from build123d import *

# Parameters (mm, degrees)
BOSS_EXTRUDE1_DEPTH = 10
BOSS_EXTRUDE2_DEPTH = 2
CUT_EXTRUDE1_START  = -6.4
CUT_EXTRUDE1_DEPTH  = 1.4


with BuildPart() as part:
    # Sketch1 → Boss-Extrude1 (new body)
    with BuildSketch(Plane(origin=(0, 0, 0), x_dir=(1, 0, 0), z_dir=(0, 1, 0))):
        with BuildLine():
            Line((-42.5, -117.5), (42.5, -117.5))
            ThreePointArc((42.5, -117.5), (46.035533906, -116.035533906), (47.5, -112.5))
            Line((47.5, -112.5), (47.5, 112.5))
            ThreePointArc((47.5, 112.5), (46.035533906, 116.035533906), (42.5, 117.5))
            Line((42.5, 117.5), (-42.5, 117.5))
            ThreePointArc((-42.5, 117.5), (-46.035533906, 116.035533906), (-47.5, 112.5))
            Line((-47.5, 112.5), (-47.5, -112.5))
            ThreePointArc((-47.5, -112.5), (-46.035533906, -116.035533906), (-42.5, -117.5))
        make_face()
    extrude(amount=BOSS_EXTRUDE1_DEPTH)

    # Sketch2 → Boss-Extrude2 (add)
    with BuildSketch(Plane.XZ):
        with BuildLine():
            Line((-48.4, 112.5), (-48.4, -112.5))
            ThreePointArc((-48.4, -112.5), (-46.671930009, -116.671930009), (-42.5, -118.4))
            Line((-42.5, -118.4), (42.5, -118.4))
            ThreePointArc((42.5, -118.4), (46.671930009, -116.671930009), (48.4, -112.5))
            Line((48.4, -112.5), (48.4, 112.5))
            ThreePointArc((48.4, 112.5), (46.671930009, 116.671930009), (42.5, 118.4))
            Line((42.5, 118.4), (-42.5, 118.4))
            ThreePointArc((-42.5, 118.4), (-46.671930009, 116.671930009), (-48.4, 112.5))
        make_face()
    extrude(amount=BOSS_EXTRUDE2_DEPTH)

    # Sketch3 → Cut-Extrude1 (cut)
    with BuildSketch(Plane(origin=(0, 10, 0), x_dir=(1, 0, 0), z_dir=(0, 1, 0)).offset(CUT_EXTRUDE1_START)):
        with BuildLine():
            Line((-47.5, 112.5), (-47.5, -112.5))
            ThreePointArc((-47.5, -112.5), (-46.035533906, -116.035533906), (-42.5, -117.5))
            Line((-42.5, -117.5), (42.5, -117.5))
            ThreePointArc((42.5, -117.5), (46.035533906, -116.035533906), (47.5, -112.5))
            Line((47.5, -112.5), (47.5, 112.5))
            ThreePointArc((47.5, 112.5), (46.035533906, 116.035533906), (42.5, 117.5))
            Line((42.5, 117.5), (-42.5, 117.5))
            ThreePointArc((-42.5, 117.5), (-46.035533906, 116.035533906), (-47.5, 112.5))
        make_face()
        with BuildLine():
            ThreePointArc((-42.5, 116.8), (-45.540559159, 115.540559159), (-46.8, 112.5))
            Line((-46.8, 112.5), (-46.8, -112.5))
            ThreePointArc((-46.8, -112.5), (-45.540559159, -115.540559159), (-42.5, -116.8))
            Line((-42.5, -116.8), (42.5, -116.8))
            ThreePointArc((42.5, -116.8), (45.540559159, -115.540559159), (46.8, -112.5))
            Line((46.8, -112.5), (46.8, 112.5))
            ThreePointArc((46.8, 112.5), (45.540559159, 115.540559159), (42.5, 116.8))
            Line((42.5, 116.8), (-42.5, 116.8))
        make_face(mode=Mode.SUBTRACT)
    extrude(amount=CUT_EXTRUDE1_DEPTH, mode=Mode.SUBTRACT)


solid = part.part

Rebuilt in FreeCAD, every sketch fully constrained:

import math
import FreeCAD as App
import Part
import Sketcher
from FreeCAD import Vector

doc = App.newDocument("Part")
body = doc.addObject("PartDesign::Body", "Body")

# Sketch on XZ plane
sketch1 = doc.addObject("Sketcher::SketchObject", "Sketch")
body.addObject(sketch1)
sketch1.AttachmentSupport = (doc.XZ_Plane, [""])
sketch1.MapMode = "FlatFace"
sketch1.addGeometry([
    Part.LineSegment(Vector(-42, 118, 0), Vector(42, 118, 0)),  # 0
    Part.ArcOfCircle(Part.Circle(Vector(42, 112, 0), Vector(0, 0, 1), 5), math.radians(0), math.radians(90)),  # 1
    Part.LineSegment(Vector(48, 112, 0), Vector(48, -112, 0)),  # 2
    Part.ArcOfCircle(Part.Circle(Vector(42, -112, 0), Vector(0, 0, 1), 5), math.radians(-90), math.radians(0)),  # 3
    Part.LineSegment(Vector(42, -118, 0), Vector(-42, -118, 0)),  # 4
    Part.ArcOfCircle(Part.Circle(Vector(-42, -112, 0), Vector(0, 0, 1), 5), math.radians(180), math.radians(270)),  # 5
    Part.LineSegment(Vector(-48, -112, 0), Vector(-48, 112, 0)),  # 6
    Part.ArcOfCircle(Part.Circle(Vector(-42, 112, 0), Vector(0, 0, 1), 5), math.radians(90), math.radians(180)),  # 7
], False)
sketch1.addConstraint([
    Sketcher.Constraint("Tangent", 0, 2, 1, 2),
    Sketcher.Constraint("Tangent", 1, 1, 2, 1),
    Sketcher.Constraint("Tangent", 2, 2, 3, 2),
    Sketcher.Constraint("Tangent", 3, 1, 4, 1),
    Sketcher.Constraint("Tangent", 4, 2, 5, 2),
    Sketcher.Constraint("Tangent", 5, 1, 6, 1),
    Sketcher.Constraint("Tangent", 6, 2, 7, 2),
    Sketcher.Constraint("Tangent", 7, 1, 0, 1),
    Sketcher.Constraint("Horizontal", 0),
    Sketcher.Constraint("Vertical", 2),
    Sketcher.Constraint("Horizontal", 4),
    Sketcher.Constraint("Vertical", 6),
    Sketcher.Constraint("Equal", 1, 3),
    Sketcher.Constraint("Equal", 3, 5),
    Sketcher.Constraint("Equal", 5, 7),
    Sketcher.Constraint("Symmetric", 1, 3, 5, 3, -1, 1),
    Sketcher.Constraint("Radius", 1, 5.0),
    Sketcher.Constraint("DistanceX", 0, 1, 0, 2, 85.0),
    Sketcher.Constraint("DistanceY", 2, 2, 2, 1, 225.0),
])
pad1 = doc.addObject("PartDesign::Pad", "Pad")
body.addObject(pad1)
pad1.Profile = sketch1
pad1.Length = 10
pad1.Reversed = True

# Sketch on XZ plane
sketch2 = doc.addObject("Sketcher::SketchObject", "Sketch001")
body.addObject(sketch2)
sketch2.AttachmentSupport = (doc.XZ_Plane, [""])
sketch2.MapMode = "FlatFace"
sketch2.addGeometry([
    Part.LineSegment(Vector(-48, 112, 0), Vector(-48, -112, 0)),  # 0
    Part.ArcOfCircle(Part.Circle(Vector(-42, -112, 0), Vector(0, 0, 1), 6), math.radians(180), math.radians(270)),  # 1
    Part.LineSegment(Vector(-42, -118, 0), Vector(42, -118, 0)),  # 2
    Part.ArcOfCircle(Part.Circle(Vector(42, -112, 0), Vector(0, 0, 1), 6), math.radians(-90), math.radians(0)),  # 3
    Part.LineSegment(Vector(48, -112, 0), Vector(48, 112, 0)),  # 4
    Part.ArcOfCircle(Part.Circle(Vector(42, 112, 0), Vector(0, 0, 1), 6), math.radians(0), math.radians(90)),  # 5
    Part.LineSegment(Vector(42, 118, 0), Vector(-42, 118, 0)),  # 6
    Part.ArcOfCircle(Part.Circle(Vector(-42, 112, 0), Vector(0, 0, 1), 6), math.radians(90), math.radians(180)),  # 7
], False)
sketch2.addConstraint([
    Sketcher.Constraint("Tangent", 0, 2, 1, 1),
    Sketcher.Constraint("Tangent", 1, 2, 2, 1),
    Sketcher.Constraint("Tangent", 2, 2, 3, 1),
    Sketcher.Constraint("Tangent", 3, 2, 4, 1),
    Sketcher.Constraint("Tangent", 4, 2, 5, 1),
    Sketcher.Constraint("Tangent", 5, 2, 6, 1),
    Sketcher.Constraint("Tangent", 6, 2, 7, 1),
    Sketcher.Constraint("Tangent", 7, 2, 0, 1),
    Sketcher.Constraint("Vertical", 0),
    Sketcher.Constraint("Horizontal", 2),
    Sketcher.Constraint("Vertical", 4),
    Sketcher.Constraint("Horizontal", 6),
    Sketcher.Constraint("Equal", 1, 3),
    Sketcher.Constraint("Equal", 3, 5),
    Sketcher.Constraint("Equal", 5, 7),
    Sketcher.Constraint("Symmetric", 1, 3, 5, 3, -1, 1),
    Sketcher.Constraint("Radius", 1, 5.9),
    Sketcher.Constraint("DistanceX", 2, 1, 2, 2, 85.0),
    Sketcher.Constraint("DistanceY", 0, 2, 0, 1, 225.0),
])
pad2 = doc.addObject("PartDesign::Pad", "Pad001")
body.addObject(pad2)
pad2.Profile = sketch2
pad2.Length = 2

# Sketch on XZ plane
sketch3 = doc.addObject("Sketcher::SketchObject", "Sketch002")
body.addObject(sketch3)
sketch3.AttachmentSupport = (doc.XZ_Plane, [""])
sketch3.MapMode = "FlatFace"
sketch3.AttachmentOffset = App.Placement(Vector(0, 0, -3.6), App.Rotation())
sketch3.addGeometry([
    Part.LineSegment(Vector(-47.5, -112.5, 0), Vector(-47.5, 112.5, 0)),  # 0
    Part.ArcOfCircle(Part.Circle(Vector(-42.5, 112.5, 0), Vector(0, 0, 1), 5), math.radians(90), math.radians(180)),  # 1
    Part.LineSegment(Vector(-42.5, 117.5, 0), Vector(42.5, 117.5, 0)),  # 2
    Part.ArcOfCircle(Part.Circle(Vector(42.5, 112.5, 0), Vector(0, 0, 1), 5), math.radians(0), math.radians(90)),  # 3
    Part.LineSegment(Vector(47.5, 112.5, 0), Vector(47.5, -112.5, 0)),  # 4
    Part.ArcOfCircle(Part.Circle(Vector(42.5, -112.5, 0), Vector(0, 0, 1), 5), math.radians(-90), math.radians(0)),  # 5
    Part.LineSegment(Vector(42.5, -117.5, 0), Vector(-42.5, -117.5, 0)),  # 6
    Part.ArcOfCircle(Part.Circle(Vector(-42.5, -112.5, 0), Vector(0, 0, 1), 5), math.radians(180), math.radians(270)),  # 7
    Part.ArcOfCircle(Part.Circle(Vector(-42.5, -112.5, 0), Vector(0, 0, 1), 4.3), math.radians(180), math.radians(270)),  # 8
    Part.LineSegment(Vector(-42.5, -116.8, 0), Vector(42.5, -116.8, 0)),  # 9
    Part.ArcOfCircle(Part.Circle(Vector(42.5, -112.5, 0), Vector(0, 0, 1), 4.3), math.radians(-90), math.radians(0)),  # 10
    Part.LineSegment(Vector(46.8, -112.5, 0), Vector(46.8, 112.5, 0)),  # 11
    Part.ArcOfCircle(Part.Circle(Vector(42.5, 112.5, 0), Vector(0, 0, 1), 4.3), math.radians(0), math.radians(90)),  # 12
    Part.LineSegment(Vector(42.5, 116.8, 0), Vector(-42.5, 116.8, 0)),  # 13
    Part.ArcOfCircle(Part.Circle(Vector(-42.5, 112.5, 0), Vector(0, 0, 1), 4.3), math.radians(90), math.radians(180)),  # 14
    Part.LineSegment(Vector(-46.8, 112.5, 0), Vector(-46.8, -112.5, 0)),  # 15
], False)
sketch3.addConstraint([
    Sketcher.Constraint("Tangent", 0, 2, 1, 2),
    Sketcher.Constraint("Tangent", 1, 1, 2, 1),
    Sketcher.Constraint("Tangent", 2, 2, 3, 2),
    Sketcher.Constraint("Tangent", 3, 1, 4, 1),
    Sketcher.Constraint("Tangent", 4, 2, 5, 2),
    Sketcher.Constraint("Tangent", 5, 1, 6, 1),
    Sketcher.Constraint("Tangent", 6, 2, 7, 2),
    Sketcher.Constraint("Tangent", 7, 1, 0, 1),
    Sketcher.Constraint("Tangent", 8, 2, 9, 1),
    Sketcher.Constraint("Tangent", 9, 2, 10, 1),
    Sketcher.Constraint("Tangent", 10, 2, 11, 1),
    Sketcher.Constraint("Tangent", 11, 2, 12, 1),
    Sketcher.Constraint("Tangent", 12, 2, 13, 1),
    Sketcher.Constraint("Tangent", 13, 2, 14, 1),
    Sketcher.Constraint("Tangent", 14, 2, 15, 1),
    Sketcher.Constraint("Tangent", 15, 2, 8, 1),
    Sketcher.Constraint("Vertical", 0),
    Sketcher.Constraint("Horizontal", 2),
    Sketcher.Constraint("Vertical", 4),
    Sketcher.Constraint("Horizontal", 6),
    Sketcher.Constraint("Horizontal", 9),
    Sketcher.Constraint("Vertical", 11),
    Sketcher.Constraint("Horizontal", 13),
    Sketcher.Constraint("Vertical", 15),
    Sketcher.Constraint("Coincident", 8, 3, 7, 3),
    Sketcher.Constraint("Coincident", 10, 3, 5, 3),
    Sketcher.Constraint("Coincident", 12, 3, 3, 3),
    Sketcher.Constraint("Equal", 1, 3),
    Sketcher.Constraint("Equal", 3, 5),
    Sketcher.Constraint("Equal", 5, 7),
    Sketcher.Constraint("Equal", 12, 14),
    Sketcher.Constraint("Symmetric", 1, 3, 5, 3, -1, 1),
    Sketcher.Constraint("Radius", 1, 5.0),
    Sketcher.Constraint("Radius", 8, 4.3),
    Sketcher.Constraint("DistanceX", 2, 1, 2, 2, 85.0),
    Sketcher.Constraint("DistanceY", 0, 1, 0, 2, 225.0),
])
pocket1 = doc.addObject("PartDesign::Pocket", "Pocket")
body.addObject(pocket1)
pocket1.Profile = sketch3
pocket1.Length = 1.4

doc.recompute()
